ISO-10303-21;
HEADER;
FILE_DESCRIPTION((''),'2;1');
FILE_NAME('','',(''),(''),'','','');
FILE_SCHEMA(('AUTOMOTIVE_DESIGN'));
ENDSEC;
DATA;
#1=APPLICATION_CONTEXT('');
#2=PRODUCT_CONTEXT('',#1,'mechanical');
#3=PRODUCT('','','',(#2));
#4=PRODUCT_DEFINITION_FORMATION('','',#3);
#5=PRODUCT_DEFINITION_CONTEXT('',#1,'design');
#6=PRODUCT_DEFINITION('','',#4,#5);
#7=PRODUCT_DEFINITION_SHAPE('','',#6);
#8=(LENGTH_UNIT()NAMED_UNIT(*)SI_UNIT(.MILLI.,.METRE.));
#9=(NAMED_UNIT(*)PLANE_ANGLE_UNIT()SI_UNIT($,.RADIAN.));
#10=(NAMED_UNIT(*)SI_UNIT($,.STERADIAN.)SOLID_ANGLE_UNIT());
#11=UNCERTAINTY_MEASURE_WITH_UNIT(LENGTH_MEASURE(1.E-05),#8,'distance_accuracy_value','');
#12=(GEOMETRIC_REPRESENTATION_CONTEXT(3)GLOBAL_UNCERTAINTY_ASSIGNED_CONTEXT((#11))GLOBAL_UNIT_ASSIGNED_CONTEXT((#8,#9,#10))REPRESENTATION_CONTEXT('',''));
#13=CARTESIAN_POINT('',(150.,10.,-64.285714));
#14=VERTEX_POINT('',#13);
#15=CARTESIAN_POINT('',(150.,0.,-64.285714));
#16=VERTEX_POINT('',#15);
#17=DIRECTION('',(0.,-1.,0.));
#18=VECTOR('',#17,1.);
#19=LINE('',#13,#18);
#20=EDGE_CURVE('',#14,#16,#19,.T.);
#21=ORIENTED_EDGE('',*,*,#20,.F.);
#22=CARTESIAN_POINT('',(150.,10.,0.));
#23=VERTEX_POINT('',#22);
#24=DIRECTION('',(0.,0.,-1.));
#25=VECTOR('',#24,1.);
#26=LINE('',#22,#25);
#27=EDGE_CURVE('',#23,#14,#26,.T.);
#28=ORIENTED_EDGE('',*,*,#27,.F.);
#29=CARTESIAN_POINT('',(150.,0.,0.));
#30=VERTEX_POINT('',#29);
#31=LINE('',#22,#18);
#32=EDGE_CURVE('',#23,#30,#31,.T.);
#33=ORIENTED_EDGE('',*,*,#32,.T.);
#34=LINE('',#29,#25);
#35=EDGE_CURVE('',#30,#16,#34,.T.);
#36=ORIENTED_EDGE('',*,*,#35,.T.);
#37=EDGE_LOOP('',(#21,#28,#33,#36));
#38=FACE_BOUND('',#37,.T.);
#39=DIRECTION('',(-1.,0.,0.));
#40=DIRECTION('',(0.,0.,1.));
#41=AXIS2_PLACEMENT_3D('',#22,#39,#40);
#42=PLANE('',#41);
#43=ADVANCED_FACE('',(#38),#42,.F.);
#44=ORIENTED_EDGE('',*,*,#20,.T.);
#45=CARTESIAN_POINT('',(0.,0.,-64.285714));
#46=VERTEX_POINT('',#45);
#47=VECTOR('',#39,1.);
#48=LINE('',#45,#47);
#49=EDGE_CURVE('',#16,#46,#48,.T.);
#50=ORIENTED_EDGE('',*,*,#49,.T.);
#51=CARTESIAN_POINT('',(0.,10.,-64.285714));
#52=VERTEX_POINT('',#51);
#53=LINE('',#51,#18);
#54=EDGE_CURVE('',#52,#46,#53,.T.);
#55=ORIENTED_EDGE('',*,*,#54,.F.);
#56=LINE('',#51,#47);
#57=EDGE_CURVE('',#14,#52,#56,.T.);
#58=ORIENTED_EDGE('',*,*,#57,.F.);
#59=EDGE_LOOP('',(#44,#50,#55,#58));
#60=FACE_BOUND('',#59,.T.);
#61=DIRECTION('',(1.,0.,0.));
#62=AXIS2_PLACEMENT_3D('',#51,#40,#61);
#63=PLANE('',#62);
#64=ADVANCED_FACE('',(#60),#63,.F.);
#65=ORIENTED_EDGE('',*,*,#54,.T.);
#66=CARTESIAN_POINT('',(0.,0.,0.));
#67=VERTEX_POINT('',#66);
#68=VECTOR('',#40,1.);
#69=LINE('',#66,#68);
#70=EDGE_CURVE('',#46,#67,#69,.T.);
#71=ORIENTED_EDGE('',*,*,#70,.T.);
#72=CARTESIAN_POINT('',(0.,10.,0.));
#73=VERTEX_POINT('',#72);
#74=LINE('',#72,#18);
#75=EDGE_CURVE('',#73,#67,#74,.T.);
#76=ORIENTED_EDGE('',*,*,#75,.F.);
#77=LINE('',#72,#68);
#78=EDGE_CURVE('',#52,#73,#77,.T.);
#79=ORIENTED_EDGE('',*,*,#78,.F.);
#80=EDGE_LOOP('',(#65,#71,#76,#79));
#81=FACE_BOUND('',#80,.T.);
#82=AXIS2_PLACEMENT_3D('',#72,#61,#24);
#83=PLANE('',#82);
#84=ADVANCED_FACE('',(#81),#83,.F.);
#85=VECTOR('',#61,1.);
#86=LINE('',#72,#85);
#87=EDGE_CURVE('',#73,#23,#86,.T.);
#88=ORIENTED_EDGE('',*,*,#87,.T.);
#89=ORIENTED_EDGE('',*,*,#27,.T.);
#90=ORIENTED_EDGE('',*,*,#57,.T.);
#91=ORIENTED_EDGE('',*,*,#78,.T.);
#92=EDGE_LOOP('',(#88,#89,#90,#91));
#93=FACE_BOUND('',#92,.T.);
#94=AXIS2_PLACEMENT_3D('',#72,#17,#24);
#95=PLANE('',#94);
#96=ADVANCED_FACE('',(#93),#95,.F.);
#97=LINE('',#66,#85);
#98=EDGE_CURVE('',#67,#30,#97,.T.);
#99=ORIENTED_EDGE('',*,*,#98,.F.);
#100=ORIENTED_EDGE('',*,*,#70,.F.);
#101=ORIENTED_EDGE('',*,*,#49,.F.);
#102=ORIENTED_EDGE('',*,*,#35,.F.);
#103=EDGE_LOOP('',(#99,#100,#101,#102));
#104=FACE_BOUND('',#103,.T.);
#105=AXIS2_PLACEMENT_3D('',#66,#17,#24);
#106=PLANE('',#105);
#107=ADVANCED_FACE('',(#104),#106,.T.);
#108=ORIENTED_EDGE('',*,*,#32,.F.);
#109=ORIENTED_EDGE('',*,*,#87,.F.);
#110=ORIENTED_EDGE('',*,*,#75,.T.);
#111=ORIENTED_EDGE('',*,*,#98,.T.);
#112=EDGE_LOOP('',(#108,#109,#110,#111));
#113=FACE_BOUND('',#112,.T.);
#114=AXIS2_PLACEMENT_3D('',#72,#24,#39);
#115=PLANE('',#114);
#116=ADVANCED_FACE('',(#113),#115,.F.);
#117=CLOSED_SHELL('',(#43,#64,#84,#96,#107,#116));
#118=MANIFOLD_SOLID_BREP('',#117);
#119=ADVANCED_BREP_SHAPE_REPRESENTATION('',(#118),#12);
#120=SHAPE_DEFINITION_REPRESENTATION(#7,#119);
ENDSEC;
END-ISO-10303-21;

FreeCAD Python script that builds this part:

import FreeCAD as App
import Part
import Sketcher

V = App.Vector

doc = App.newDocument("Part")
body = doc.addObject("PartDesign::Body", "Body")

# Sketch on XZ plane
sketch1 = doc.addObject("Sketcher::SketchObject", "Sketch")
body.addObject(sketch1)
sketch1.AttachmentSupport = (doc.XZ_Plane, [""])
sketch1.MapMode = "FlatFace"
sketch1.addGeometry(Part.LineSegment(V(0, -64.285714, 0), V(0, 0, 0)), False)
sketch1.addGeometry(Part.LineSegment(V(0, 0, 0), V(150, 0, 0)), False)
sketch1.addGeometry(Part.LineSegment(V(150, 0, 0), V(150, -64.285714, 0)), False)
sketch1.addGeometry(Part.LineSegment(V(150, -64.285714, 0), V(0, -64.285714, 0)), False)
sketch1.addConstraint(Sketcher.Constraint("Coincident", 0, 2, 1, 1))
sketch1.addConstraint(Sketcher.Constraint("Coincident", 1, 2, 2, 1))
sketch1.addConstraint(Sketcher.Constraint("Coincident", 2, 2, 3, 1))
sketch1.addConstraint(Sketcher.Constraint("Coincident", 3, 2, 0, 1))
sketch1.addConstraint(Sketcher.Constraint("Vertical", 0))
sketch1.addConstraint(Sketcher.Constraint("Horizontal", 1))
sketch1.addConstraint(Sketcher.Constraint("Vertical", 2))
sketch1.addConstraint(Sketcher.Constraint("Horizontal", 3))
sketch1.addConstraint(Sketcher.Constraint("Coincident", 0, 2, -1, 1))
sketch1.addConstraint(Sketcher.Constraint("DistanceX", 1, 1, 1, 2, 150.0))
sketch1.addConstraint(Sketcher.Constraint("DistanceY", 0, 1, 0, 2, 64.285714))
pad1 = doc.addObject("PartDesign::Pad", "Pad")
body.addObject(pad1)
pad1.Profile = sketch1
pad1.Length = 10
pad1.Reversed = True

doc.recompute()
